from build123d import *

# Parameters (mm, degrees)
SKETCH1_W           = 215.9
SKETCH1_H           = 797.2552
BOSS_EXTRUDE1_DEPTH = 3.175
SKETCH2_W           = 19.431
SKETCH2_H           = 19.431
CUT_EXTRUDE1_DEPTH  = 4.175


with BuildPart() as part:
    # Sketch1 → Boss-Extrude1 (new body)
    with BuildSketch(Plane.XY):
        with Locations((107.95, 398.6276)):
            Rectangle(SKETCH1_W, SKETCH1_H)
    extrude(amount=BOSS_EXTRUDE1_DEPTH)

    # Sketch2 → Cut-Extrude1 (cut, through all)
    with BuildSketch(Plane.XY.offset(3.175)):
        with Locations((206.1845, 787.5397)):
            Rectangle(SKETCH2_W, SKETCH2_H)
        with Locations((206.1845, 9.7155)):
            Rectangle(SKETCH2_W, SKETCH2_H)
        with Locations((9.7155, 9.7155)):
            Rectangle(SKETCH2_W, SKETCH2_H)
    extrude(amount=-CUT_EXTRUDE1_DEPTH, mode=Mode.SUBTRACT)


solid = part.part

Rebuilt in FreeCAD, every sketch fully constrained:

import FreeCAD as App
import Part
import Sketcher

V = App.Vector
Q = App.Units.Quantity

doc = App.newDocument("Part")
body = doc.addObject("PartDesign::Body", "Body")

# Sketch on XY plane
sketch1 = body.newObject("Sketcher::SketchObject", "Sketch")
sketch1.AttachmentSupport = (doc.getObject("XY_Plane"), [""])
sketch1.MapMode = "FlatFace"
sketch1.addGeometry(Part.LineSegment(V(0, 797, 0), V(0, 0, 0)), False)
sketch1.addGeometry(Part.LineSegment(V(0, 0, 0), V(216, 0, 0)), False)
sketch1.addGeometry(Part.LineSegment(V(216, 0, 0), V(216, 797, 0)), False)
sketch1.addGeometry(Part.LineSegment(V(216, 797, 0), V(0, 797, 0)), False)
sketch1.addConstraint(Sketcher.Constraint("Coincident", 0, 2, 1, 1))
sketch1.addConstraint(Sketcher.Constraint("Coincident", 1, 2, 2, 1))
sketch1.addConstraint(Sketcher.Constraint("Coincident", 2, 2, 3, 1))
sketch1.addConstraint(Sketcher.Constraint("Coincident", 3, 2, 0, 1))
sketch1.addConstraint(Sketcher.Constraint("Vertical", 0))
sketch1.addConstraint(Sketcher.Constraint("Horizontal", 1))
sketch1.addConstraint(Sketcher.Constraint("Vertical", 2))
sketch1.addConstraint(Sketcher.Constraint("Horizontal", 3))
sketch1.addConstraint(Sketcher.Constraint("Coincident", 0, 2, -1, 1))
sketch1.addConstraint(Sketcher.Constraint("DistanceX", 1, 1, 1, 2, Q("8.5 in")))
sketch1.addConstraint(Sketcher.Constraint("DistanceY", 0, 2, 0, 1, Q("31.388 in")))
pad1 = body.newObject("PartDesign::Pad", "Pad")
pad1.Profile = sketch1
pad1.Length = Q("0.125 in")

# Sketch on XY plane
sketch2 = body.newObject("Sketcher::SketchObject", "Sketch001")
sketch2.AttachmentSupport = (doc.getObject("XY_Plane"), [""])
sketch2.MapMode = "FlatFace"
sketch2.AttachmentOffset = App.Placement(V(0, 0, 0.125 * 25.4), App.Rotation())
sketch2.addGeometry(Part.LineSegment(V(196, 797, 0), V(196, 778, 0)), False)
sketch2.addGeometry(Part.LineSegment(V(196, 778, 0), V(216, 778, 0)), False)
sketch2.addGeometry(Part.LineSegment(V(216, 778, 0), V(216, 797, 0)), False)
sketch2.addGeometry(Part.LineSegment(V(216, 797, 0), V(196, 797, 0)), False)
sketch2.addGeometry(Part.LineSegment(V(196, 19, 0), V(196, 0, 0)), False)
sketch2.addGeometry(Part.LineSegment(V(196, 0, 0), V(216, 0, 0)), False)
sketch2.addGeometry(Part.LineSegment(V(216, 0, 0), V(216, 19, 0)), False)
sketch2.addGeometry(Part.LineSegment(V(216, 19, 0), V(196, 19, 0)), False)
sketch2.addGeometry(Part.LineSegment(V(0, 19, 0), V(0, 0, 0)), False)
sketch2.addGeometry(Part.LineSegment(V(0, 0, 0), V(19, 0, 0)), False)
sketch2.addGeometry(Part.LineSegment(V(19, 0, 0), V(19, 19, 0)), False)
sketch2.addGeometry(Part.LineSegment(V(19, 19, 0), V(0, 19, 0)), False)
sketch2.addConstraint(Sketcher.Constraint("Coincident", 0, 2, 1, 1))
sketch2.addConstraint(Sketcher.Constraint("Coincident", 1, 2, 2, 1))
sketch2.addConstraint(Sketcher.Constraint("Coincident", 2, 2, 3, 1))
sketch2.addConstraint(Sketcher.Constraint("Coincident", 3, 2, 0, 1))
sketch2.addConstraint(Sketcher.Constraint("Coincident", 4, 2, 5, 1))
sketch2.addConstraint(Sketcher.Constraint("Coincident", 5, 2, 6, 1))
sketch2.addConstraint(Sketcher.Constraint("Coincident", 6, 2, 7, 1))
sketch2.addConstraint(Sketcher.Constraint("Coincident", 7, 2, 4, 1))
sketch2.addConstraint(Sketcher.Constraint("Coincident", 8, 2, 9, 1))
sketch2.addConstraint(Sketcher.Constraint("Coincident", 9, 2, 10, 1))
sketch2.addConstraint(Sketcher.Constraint("Coincident", 10, 2, 11, 1))
sketch2.addConstraint(Sketcher.Constraint("Coincident", 11, 2, 8, 1))
sketch2.addConstraint(Sketcher.Constraint("Vertical", 0))
sketch2.addConstraint(Sketcher.Constraint("Horizontal", 1))
sketch2.addConstraint(Sketcher.Constraint("Vertical", 2))
sketch2.addConstraint(Sketcher.Constraint("Horizontal", 3))
sketch2.addConstraint(Sketcher.Constraint("Vertical", 4))
sketch2.addConstraint(Sketcher.Constraint("Horizontal", 5))
sketch2.addConstraint(Sketcher.Constraint("Vertical", 6))
sketch2.addConstraint(Sketcher.Constraint("Horizontal", 7))
sketch2.addConstraint(Sketcher.Constraint("Vertical", 8))
sketch2.addConstraint(Sketcher.Constraint("Horizontal", 9))
sketch2.addConstraint(Sketcher.Constraint("Vertical", 10))
sketch2.addConstraint(Sketcher.Constraint("Horizontal", 11))
sketch2.addConstraint(Sketcher.Constraint("Coincident", 8, 2, -1, 1))
sketch2.addConstraint(Sketcher.Constraint("PointOnObject", 4, 2, -1))
sketch2.addConstraint(Sketcher.Constraint("Horizontal", 7, 2, 10, 2))
sketch2.addConstraint(Sketcher.Constraint("Vertical", 3, 2, 4, 2))
sketch2.addConstraint(Sketcher.Constraint("Vertical", 2, 2, 5, 2))
sketch2.addConstraint(Sketcher.Constraint("Equal", 7, 9))
sketch2.addConstraint(Sketcher.Constraint("Equal", 11, 0))
sketch2.addConstraint(Sketcher.Constraint("Equal", 2, 4))
sketch2.addConstraint(Sketcher.Constraint("DistanceX", -1, 1, 1, 2, Q("8.5 in")))
sketch2.addConstraint(Sketcher.Constraint("DistanceX", 1, 1, 1, 2, Q("0.765 in")))
sketch2.addConstraint(Sketcher.Constraint("DistanceY", -1, 1, 0, 2, Q("30.623 in")))
pocket1 = body.newObject("PartDesign::Pocket", "Pocket")
pocket1.Profile = sketch2
pocket1.Type = "ThroughAll"

doc.recompute()
